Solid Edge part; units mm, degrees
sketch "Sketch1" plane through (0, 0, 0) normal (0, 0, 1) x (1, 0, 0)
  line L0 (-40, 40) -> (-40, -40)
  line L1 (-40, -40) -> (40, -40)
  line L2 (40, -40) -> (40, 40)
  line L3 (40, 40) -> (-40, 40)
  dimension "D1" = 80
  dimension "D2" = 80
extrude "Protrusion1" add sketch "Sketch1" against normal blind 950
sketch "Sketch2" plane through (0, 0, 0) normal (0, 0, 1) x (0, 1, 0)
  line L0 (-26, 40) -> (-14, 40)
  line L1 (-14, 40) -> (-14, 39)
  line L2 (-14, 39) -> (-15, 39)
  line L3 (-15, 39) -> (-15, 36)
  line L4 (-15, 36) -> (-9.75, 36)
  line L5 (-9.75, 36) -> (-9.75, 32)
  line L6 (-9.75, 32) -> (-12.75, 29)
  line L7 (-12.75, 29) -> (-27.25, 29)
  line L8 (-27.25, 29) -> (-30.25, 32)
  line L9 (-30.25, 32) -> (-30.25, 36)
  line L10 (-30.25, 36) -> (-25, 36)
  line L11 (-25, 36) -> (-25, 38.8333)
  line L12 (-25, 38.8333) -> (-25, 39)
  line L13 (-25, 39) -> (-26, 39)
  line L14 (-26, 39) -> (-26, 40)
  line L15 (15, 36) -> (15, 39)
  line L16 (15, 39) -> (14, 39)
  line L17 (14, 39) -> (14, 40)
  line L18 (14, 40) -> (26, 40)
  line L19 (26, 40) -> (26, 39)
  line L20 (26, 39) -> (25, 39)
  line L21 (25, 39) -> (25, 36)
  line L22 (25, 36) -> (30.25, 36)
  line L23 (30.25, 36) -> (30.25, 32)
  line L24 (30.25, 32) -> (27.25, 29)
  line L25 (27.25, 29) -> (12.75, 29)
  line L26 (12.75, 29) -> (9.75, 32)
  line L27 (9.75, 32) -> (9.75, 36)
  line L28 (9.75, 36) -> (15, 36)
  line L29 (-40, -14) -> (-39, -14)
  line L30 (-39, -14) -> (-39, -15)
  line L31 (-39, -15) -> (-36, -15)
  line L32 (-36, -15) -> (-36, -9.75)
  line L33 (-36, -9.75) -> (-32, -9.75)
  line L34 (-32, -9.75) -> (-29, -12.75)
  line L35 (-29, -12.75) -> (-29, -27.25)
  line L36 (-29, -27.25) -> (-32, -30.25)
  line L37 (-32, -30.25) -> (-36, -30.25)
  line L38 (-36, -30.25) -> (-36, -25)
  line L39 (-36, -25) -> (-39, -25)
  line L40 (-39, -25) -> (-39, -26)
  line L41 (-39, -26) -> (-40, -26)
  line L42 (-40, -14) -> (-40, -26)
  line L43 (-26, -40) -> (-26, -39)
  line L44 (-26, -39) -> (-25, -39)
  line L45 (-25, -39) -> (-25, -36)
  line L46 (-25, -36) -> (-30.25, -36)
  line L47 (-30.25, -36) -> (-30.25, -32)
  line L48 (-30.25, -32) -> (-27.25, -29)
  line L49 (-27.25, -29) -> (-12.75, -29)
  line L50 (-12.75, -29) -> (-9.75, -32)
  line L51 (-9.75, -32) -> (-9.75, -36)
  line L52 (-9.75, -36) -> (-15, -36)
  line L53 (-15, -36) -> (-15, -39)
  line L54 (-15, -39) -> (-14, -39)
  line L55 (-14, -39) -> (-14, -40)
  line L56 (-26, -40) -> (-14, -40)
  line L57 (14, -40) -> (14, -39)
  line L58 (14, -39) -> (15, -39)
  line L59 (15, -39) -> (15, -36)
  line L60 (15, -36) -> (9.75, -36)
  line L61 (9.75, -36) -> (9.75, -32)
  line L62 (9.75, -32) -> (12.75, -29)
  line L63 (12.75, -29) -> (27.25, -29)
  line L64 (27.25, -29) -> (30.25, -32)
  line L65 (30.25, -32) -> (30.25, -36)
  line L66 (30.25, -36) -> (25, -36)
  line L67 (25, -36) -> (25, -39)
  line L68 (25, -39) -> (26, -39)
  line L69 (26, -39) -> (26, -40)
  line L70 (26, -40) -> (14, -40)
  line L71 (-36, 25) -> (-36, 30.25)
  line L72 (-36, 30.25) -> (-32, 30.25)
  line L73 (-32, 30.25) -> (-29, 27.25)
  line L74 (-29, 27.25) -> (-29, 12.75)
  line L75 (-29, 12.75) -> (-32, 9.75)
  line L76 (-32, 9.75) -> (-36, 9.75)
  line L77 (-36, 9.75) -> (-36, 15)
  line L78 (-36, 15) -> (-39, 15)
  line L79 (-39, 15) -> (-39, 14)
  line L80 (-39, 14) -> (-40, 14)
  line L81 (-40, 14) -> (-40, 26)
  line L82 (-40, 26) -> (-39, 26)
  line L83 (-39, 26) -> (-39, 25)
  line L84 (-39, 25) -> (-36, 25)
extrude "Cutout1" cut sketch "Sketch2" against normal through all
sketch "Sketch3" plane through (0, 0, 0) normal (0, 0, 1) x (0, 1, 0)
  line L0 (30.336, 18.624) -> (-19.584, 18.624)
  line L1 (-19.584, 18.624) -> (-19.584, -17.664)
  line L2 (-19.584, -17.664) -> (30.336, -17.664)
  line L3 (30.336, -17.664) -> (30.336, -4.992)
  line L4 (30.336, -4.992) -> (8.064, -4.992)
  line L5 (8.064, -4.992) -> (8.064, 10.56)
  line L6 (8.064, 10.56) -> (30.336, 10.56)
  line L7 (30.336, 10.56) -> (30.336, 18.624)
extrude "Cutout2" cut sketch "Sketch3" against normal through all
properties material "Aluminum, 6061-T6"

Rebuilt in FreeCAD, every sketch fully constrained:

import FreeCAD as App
import Part
import Sketcher

V = App.Vector
Q = App.Units.Quantity


def add_polygon(sketch, points):
    """Adds a closed chain of lines whose ends are joined by coincident constraints."""
    first, n = sketch.GeometryCount, len(points)
    for a, b in zip(points, points[1:] + points[:1]):
        sketch.addGeometry(Part.LineSegment(App.Vector(*a, 0), App.Vector(*b, 0)), False)
    for i in range(n):
        sketch.addConstraint(Sketcher.Constraint("Coincident", first + i, 2, first + (i + 1) % n, 1))

doc = App.newDocument("Part")
body = doc.addObject("PartDesign::Body", "Body")

# Sketch on XY plane
sketch1 = body.newObject("Sketcher::SketchObject", "Sketch")
sketch1.AttachmentSupport = (doc.getObject("XY_Plane"), [""])
sketch1.MapMode = "FlatFace"
add_polygon(sketch1, [(40, 40), (-40, 40), (-40, -40), (40, -40)])  # lines 0-3
sketch1.addConstraint(Sketcher.Constraint("Horizontal", 0))
sketch1.addConstraint(Sketcher.Constraint("Vertical", 1))
sketch1.addConstraint(Sketcher.Constraint("Horizontal", 2))
sketch1.addConstraint(Sketcher.Constraint("Vertical", 3))
sketch1.addConstraint(Sketcher.Constraint("Symmetric", 0, 2, 2, 2, -1, 1))
sketch1.addConstraint(Sketcher.Constraint("Equal", 2, 1))
sketch1.addConstraint(Sketcher.Constraint("DistanceX", 0, 2, 0, 1, Q("80 mm")))
pad1 = body.newObject("PartDesign::Pad", "Pad")
pad1.Profile = sketch1
pad1.Length = 950
pad1.Reversed = True

# Sketch on XY plane
sketch2 = body.newObject("Sketcher::SketchObject", "Sketch001")
sketch2.AttachmentSupport = (doc.getObject("XY_Plane"), [""])
sketch2.MapMode = "FlatFace"
add_polygon(sketch2, [(-40, -14), (-40, -26), (-39, -26), (-39, -25), (-36, -25), (-36, -30.2), (-32, -30.2), (-29, -27.2), (-29, -12.8), (-32, -9.8), (-36, -9.8), (-36, -15), (-39, -15), (-39, -14)])  # lines 0-13
add_polygon(sketch2, [(-39, 15), (-36, 15), (-36, 9.8), (-32, 9.8), (-29, 12.8), (-29, 27.2), (-32, 30.2), (-36, 30.2), (-36, 25), (-39, 25), (-39, 26), (-40, 26), (-40, 14), (-39, 14)])  # lines 14-27
add_polygon(sketch2, [(14, -39), (14, -40), (26, -40), (26, -39), (25, -39), (25, -36), (30.2, -36), (30.2, -32), (27.2, -29), (12.8, -29), (9.8, -32), (9.8, -36), (15, -36), (15, -39)])  # lines 28-41
add_polygon(sketch2, [(39, -26), (40, -26), (40, -14), (39, -14), (39, -15), (36, -15), (36, -9.8), (32, -9.8), (29, -12.8), (29, -27.2), (32, -30.2), (36, -30.2), (36, -25), (39, -25)])  # lines 42-55
add_polygon(sketch2, [(39, 14), (40, 14), (40, 26), (39, 26), (39, 25), (36, 25), (36, 30.2), (32, 30.2), (29, 27.2), (29, 12.8), (32, 9.8), (36, 9.8), (36, 15), (39, 15)])  # lines 56-69
add_polygon(sketch2, [(-30.2, -36), (-25, -36), (-25, -39), (-26, -39), (-26, -40), (-14, -40), (-14, -39), (-15, -39), (-15, -36), (-9.8, -36), (-9.8, -32), (-12.8, -29), (-27.2, -29), (-30.2, -32)])  # lines 70-83
sketch2.addConstraint(Sketcher.Constraint("Vertical", 0))
sketch2.addConstraint(Sketcher.Constraint("Horizontal", 1))
sketch2.addConstraint(Sketcher.Constraint("Vertical", 2))
sketch2.addConstraint(Sketcher.Constraint("Horizontal", 3))
sketch2.addConstraint(Sketcher.Constraint("Vertical", 4))
sketch2.addConstraint(Sketcher.Constraint("Horizontal", 5))
sketch2.addConstraint(Sketcher.Constraint("Vertical", 7))
sketch2.addConstraint(Sketcher.Constraint("Horizontal", 9))
sketch2.addConstraint(Sketcher.Constraint("Vertical", 10))
sketch2.addConstraint(Sketcher.Constraint("Horizontal", 11))
sketch2.addConstraint(Sketcher.Constraint("Vertical", 12))
sketch2.addConstraint(Sketcher.Constraint("Horizontal", 13))
sketch2.addConstraint(Sketcher.Constraint("Horizontal", 14))
sketch2.addConstraint(Sketcher.Constraint("Vertical", 15))
sketch2.addConstraint(Sketcher.Constraint("Horizontal", 16))
sketch2.addConstraint(Sketcher.Constraint("Vertical", 18))
sketch2.addConstraint(Sketcher.Constraint("Horizontal", 20))
sketch2.addConstraint(Sketcher.Constraint("Vertical", 21))
sketch2.addConstraint(Sketcher.Constraint("Horizontal", 22))
sketch2.addConstraint(Sketcher.Constraint("Vertical", 23))
sketch2.addConstraint(Sketcher.Constraint("Horizontal", 24))
sketch2.addConstraint(Sketcher.Constraint("Vertical", 25))
sketch2.addConstraint(Sketcher.Constraint("Horizontal", 26))
sketch2.addConstraint(Sketcher.Constraint("Vertical", 27))
sketch2.addConstraint(Sketcher.Constraint("Vertical", 28))
sketch2.addConstraint(Sketcher.Constraint("Horizontal", 29))
sketch2.addConstraint(Sketcher.Constraint("Vertical", 30))
sketch2.addConstraint(Sketcher.Constraint("Horizontal", 31))
sketch2.addConstraint(Sketcher.Constraint("Vertical", 32))
sketch2.addConstraint(Sketcher.Constraint("Horizontal", 33))
sketch2.addConstraint(Sketcher.Constraint("Vertical", 34))
sketch2.addConstraint(Sketcher.Constraint("Horizontal", 36))
sketch2.addConstraint(Sketcher.Constraint("Vertical", 38))
sketch2.addConstraint(Sketcher.Constraint("Horizontal", 39))
sketch2.addConstraint(Sketcher.Constraint("Vertical", 40))
sketch2.addConstraint(Sketcher.Constraint("Horizontal", 41))
sketch2.addConstraint(Sketcher.Constraint("Horizontal", 42))
sketch2.addConstraint(Sketcher.Constraint("Vertical", 43))
sketch2.addConstraint(Sketcher.Constraint("Horizontal", 44))
sketch2.addConstraint(Sketcher.Constraint("Vertical", 45))
sketch2.addConstraint(Sketcher.Constraint("Horizontal", 46))
sketch2.addConstraint(Sketcher.Constraint("Vertical", 47))
sketch2.addConstraint(Sketcher.Constraint("Horizontal", 48))
sketch2.addConstraint(Sketcher.Constraint("Vertical", 50))
sketch2.addConstraint(Sketcher.Constraint("Horizontal", 52))
sketch2.addConstraint(Sketcher.Constraint("Vertical", 53))
sketch2.addConstraint(Sketcher.Constraint("Horizontal", 54))
sketch2.addConstraint(Sketcher.Constraint("Vertical", 55))
sketch2.addConstraint(Sketcher.Constraint("Horizontal", 56))
sketch2.addConstraint(Sketcher.Constraint("Vertical", 57))
sketch2.addConstraint(Sketcher.Constraint("Horizontal", 58))
sketch2.addConstraint(Sketcher.Constraint("Vertical", 59))
sketch2.addConstraint(Sketcher.Constraint("Horizontal", 60))
sketch2.addConstraint(Sketcher.Constraint("Vertical", 61))
sketch2.addConstraint(Sketcher.Constraint("Horizontal", 62))
sketch2.addConstraint(Sketcher.Constraint("Vertical", 64))
sketch2.addConstraint(Sketcher.Constraint("Horizontal", 66))
sketch2.addConstraint(Sketcher.Constraint("Vertical", 67))
sketch2.addConstraint(Sketcher.Constraint("Horizontal", 68))
sketch2.addConstraint(Sketcher.Constraint("Vertical", 69))
sketch2.addConstraint(Sketcher.Constraint("Horizontal", 70))
sketch2.addConstraint(Sketcher.Constraint("Vertical", 71))
sketch2.addConstraint(Sketcher.Constraint("Horizontal", 72))
sketch2.addConstraint(Sketcher.Constraint("Vertical", 73))
sketch2.addConstraint(Sketcher.Constraint("Horizontal", 74))
sketch2.addConstraint(Sketcher.Constraint("Vertical", 75))
sketch2.addConstraint(Sketcher.Constraint("Horizontal", 76))
sketch2.addConstraint(Sketcher.Constraint("Vertical", 77))
sketch2.addConstraint(Sketcher.Constraint("Horizontal", 78))
sketch2.addConstraint(Sketcher.Constraint("Vertical", 79))
sketch2.addConstraint(Sketcher.Constraint("Horizontal", 81))
sketch2.addConstraint(Sketcher.Constraint("Vertical", 83))
sketch2.addConstraint(Sketcher.Constraint("Symmetric", 24, 2, 42, 2, -1, 1))
sketch2.addConstraint(Sketcher.Constraint("Symmetric", 26, 2, 44, 2, -1, 1))
sketch2.addConstraint(Sketcher.Constraint("Symmetric", 14, 2, 46, 2, -1, 1))
sketch2.addConstraint(Sketcher.Constraint("Symmetric", 16, 2, 48, 2, -1, 1))
sketch2.addConstraint(Sketcher.Constraint("Symmetric", 17, 2, 49, 2, -1, 1))
sketch2.addConstraint(Sketcher.Constraint("Symmetric", 19, 2, 51, 2, -1, 1))
sketch2.addConstraint(Sketcher.Constraint("Symmetric", 21, 2, 53, 2, -1, 1))
sketch2.addConstraint(Sketcher.Constraint("Symmetric", 13, 2, 56, 2, -1, 1))
sketch2.addConstraint(Sketcher.Constraint("Symmetric", 1, 2, 58, 2, -1, 1))
sketch2.addConstraint(Sketcher.Constraint("Symmetric", 3, 2, 60, 2, -1, 1))
sketch2.addConstraint(Sketcher.Constraint("Symmetric", 5, 2, 62, 2, -1, 1))
sketch2.addConstraint(Sketcher.Constraint("Symmetric", 6, 2, 63, 2, -1, 1))
sketch2.addConstraint(Sketcher.Constraint("Symmetric", 8, 2, 65, 2, -1, 1))
sketch2.addConstraint(Sketcher.Constraint("Symmetric", 10, 2, 67, 2, -1, 1))
sketch2.addConstraint(Sketcher.Constraint("Symmetric", 0, 2, 42, 2, -2))
sketch2.addConstraint(Sketcher.Constraint("Symmetric", 12, 2, 44, 2, -2))
sketch2.addConstraint(Sketcher.Constraint("Symmetric", 10, 2, 46, 2, -2))
sketch2.addConstraint(Sketcher.Constraint("Symmetric", 8, 2, 48, 2, -2))
sketch2.addConstraint(Sketcher.Constraint("Symmetric", 7, 2, 49, 2, -2))
sketch2.addConstraint(Sketcher.Constraint("Symmetric", 5, 2, 51, 2, -2))
sketch2.addConstraint(Sketcher.Constraint("Symmetric", 3, 2, 53, 2, -2))
sketch2.addConstraint(Sketcher.Constraint("Symmetric", 32, 2, 70, 2, -2))
sketch2.addConstraint(Sketcher.Constraint("Symmetric", 30, 2, 72, 2, -2))
sketch2.addConstraint(Sketcher.Constraint("Symmetric", 28, 2, 74, 2, -2))
sketch2.addConstraint(Sketcher.Constraint("Symmetric", 40, 2, 76, 2, -2))
sketch2.addConstraint(Sketcher.Constraint("Symmetric", 38, 2, 78, 2, -2))
sketch2.addConstraint(Sketcher.Constraint("Symmetric", 36, 2, 80, 2, -2))
sketch2.addConstraint(Sketcher.Constraint("Symmetric", 34, 2, 82, 2, -2))
sketch2.addConstraint(Sketcher.Constraint("Perpendicular", 6, 8))
sketch2.addConstraint(Sketcher.Constraint("Perpendicular", 8, 17))
sketch2.addConstraint(Sketcher.Constraint("Perpendicular", 17, 19))
sketch2.addConstraint(Sketcher.Constraint("Parallel", 19, 35))
sketch2.addConstraint(Sketcher.Constraint("Perpendicular", 35, 37))
sketch2.addConstraint(Sketcher.Constraint("Perpendicular", 49, 51))
sketch2.addConstraint(Sketcher.Constraint("Perpendicular", 63, 65))
sketch2.addConstraint(Sketcher.Constraint("Parallel", 65, 80))
sketch2.addConstraint(Sketcher.Constraint("Perpendicular", 80, 82))
sketch2.addConstraint(Sketcher.Constraint("Horizontal", 34, 2, 37, 2))
sketch2.addConstraint(Sketcher.Constraint("Horizontal", 33, 2, 38, 2))
sketch2.addConstraint(Sketcher.Constraint("Horizontal", 31, 2, 40, 2))
sketch2.addConstraint(Sketcher.Constraint("Vertical", 5, 2, 8, 2))
sketch2.addConstraint(Sketcher.Constraint("Vertical", 4, 2, 9, 2))
sketch2.addConstraint(Sketcher.Constraint("Vertical", 2, 2, 11, 2))
sketch2.addConstraint(Sketcher.Constraint("Vertical", 12, 2, 22, 2))
sketch2.addConstraint(Sketcher.Constraint("Vertical", 45, 2, 54, 2))
sketch2.addConstraint(Sketcher.Constraint("Vertical", 59, 2, 68, 2))
sketch2.addConstraint(Sketcher.Constraint("Equal", 26, 31))
sketch2.addConstraint(Sketcher.Constraint("Equal", 33, 39))
sketch2.addConstraint(Sketcher.Constraint("Equal", 31, 41))
sketch2.addConstraint(Sketcher.Constraint("Equal", 74, 0))
sketch2.addConstraint(Sketcher.Constraint("Equal", 76, 2))
sketch2.addConstraint(Sketcher.Constraint("Equal", 78, 4))
sketch2.addConstraint(Sketcher.Constraint("Equal", 81, 7))
sketch2.addConstraint(Sketcher.Constraint("Equal", 4, 10))
sketch2.addConstraint(Sketcher.Constraint("Equal", 2, 12))
sketch2.addConstraint(Sketcher.Constraint("Equal", 27, 28))
sketch2.addConstraint(Sketcher.Constraint("Equal", 68, 32))
sketch2.addConstraint(Sketcher.Constraint("Equal", 66, 34))
sketch2.addConstraint(Sketcher.Constraint("DistanceX", 1, 1, 1, 2, Q("1 mm")))
sketch2.addConstraint(Sketcher.Constraint("DistanceX", 3, 1, 3, 2, Q("3 mm")))
sketch2.addConstraint(Sketcher.Constraint("DistanceX", 5, 1, 5, 2, Q("4 mm")))
sketch2.addConstraint(Sketcher.Constraint("DistanceX", 29, 1, 29, 2, Q("12 mm")))
sketch2.addConstraint(Sketcher.Constraint("DistanceX", 36, 2, 36, 1, Q("14.5 mm")))
sketch2.addConstraint(Sketcher.Constraint("DistanceX", 0, 2, -1, 1, Q("40 mm")))
sketch2.addConstraint(Sketcher.Constraint("DistanceY", 0, 2, -1, 1, Q("26 mm")))
sketch2.addConstraint(Sketcher.Constraint("DistanceX", 6, 2, -1, 1, Q("29 mm")))
sketch2.addConstraint(Sketcher.Constraint("DistanceX", -1, 1, 28, 2, Q("14 mm")))
sketch2.addConstraint(Sketcher.Constraint("DistanceY", 28, 2, -1, 1, Q("40 mm")))
pocket1 = body.newObject("PartDesign::Pocket", "Pocket")
pocket1.Profile = sketch2
pocket1.Type = "ThroughAll"

# Sketch on XY plane
sketch3 = body.newObject("Sketcher::SketchObject", "Sketch002")
sketch3.AttachmentSupport = (doc.getObject("XY_Plane"), [""])
sketch3.MapMode = "FlatFace"
add_polygon(sketch3, [(-11, 30), (-19, 30), (-19, -20), (18, -20), (18, 30), (5, 30), (5, 8), (-11, 8)])  # lines 0-7
sketch3.addConstraint(Sketcher.Constraint("Horizontal", 0))
sketch3.addConstraint(Sketcher.Constraint("Vertical", 1))
sketch3.addConstraint(Sketcher.Constraint("Horizontal", 2))
sketch3.addConstraint(Sketcher.Constraint("Vertical", 3))
sketch3.addConstraint(Sketcher.Constraint("Horizontal", 4))
sketch3.addConstraint(Sketcher.Constraint("Vertical", 5))
sketch3.addConstraint(Sketcher.Constraint("Horizontal", 6))
sketch3.addConstraint(Sketcher.Constraint("Vertical", 7))
sketch3.addConstraint(Sketcher.Constraint("Horizontal", 0, 2, 3, 2))
sketch3.addConstraint(Sketcher.Constraint("DistanceY", 1, 2, 1, 1, Q("49.92 mm")))
sketch3.addConstraint(Sketcher.Constraint("DistanceX", 0, 2, 0, 1, Q("8.064 mm")))
sketch3.addConstraint(Sketcher.Constraint("DistanceX", 2, 1, 2, 2, Q("36.288 mm")))
sketch3.addConstraint(Sketcher.Constraint("DistanceX", 4, 2, 4, 1, Q("12.672 mm")))
sketch3.addConstraint(Sketcher.Constraint("DistanceY", 5, 2, 5, 1, Q("22.272 mm")))
sketch3.addConstraint(Sketcher.Constraint("DistanceX", 6, 2, -1, 1, Q("10.56 mm")))
sketch3.addConstraint(Sketcher.Constraint("DistanceY", -1, 1, 0, 2, Q("30.336 mm")))
pocket2 = body.newObject("PartDesign::Pocket", "Pocket001")
pocket2.Profile = sketch3
pocket2.Type = "ThroughAll"

doc.recompute()
